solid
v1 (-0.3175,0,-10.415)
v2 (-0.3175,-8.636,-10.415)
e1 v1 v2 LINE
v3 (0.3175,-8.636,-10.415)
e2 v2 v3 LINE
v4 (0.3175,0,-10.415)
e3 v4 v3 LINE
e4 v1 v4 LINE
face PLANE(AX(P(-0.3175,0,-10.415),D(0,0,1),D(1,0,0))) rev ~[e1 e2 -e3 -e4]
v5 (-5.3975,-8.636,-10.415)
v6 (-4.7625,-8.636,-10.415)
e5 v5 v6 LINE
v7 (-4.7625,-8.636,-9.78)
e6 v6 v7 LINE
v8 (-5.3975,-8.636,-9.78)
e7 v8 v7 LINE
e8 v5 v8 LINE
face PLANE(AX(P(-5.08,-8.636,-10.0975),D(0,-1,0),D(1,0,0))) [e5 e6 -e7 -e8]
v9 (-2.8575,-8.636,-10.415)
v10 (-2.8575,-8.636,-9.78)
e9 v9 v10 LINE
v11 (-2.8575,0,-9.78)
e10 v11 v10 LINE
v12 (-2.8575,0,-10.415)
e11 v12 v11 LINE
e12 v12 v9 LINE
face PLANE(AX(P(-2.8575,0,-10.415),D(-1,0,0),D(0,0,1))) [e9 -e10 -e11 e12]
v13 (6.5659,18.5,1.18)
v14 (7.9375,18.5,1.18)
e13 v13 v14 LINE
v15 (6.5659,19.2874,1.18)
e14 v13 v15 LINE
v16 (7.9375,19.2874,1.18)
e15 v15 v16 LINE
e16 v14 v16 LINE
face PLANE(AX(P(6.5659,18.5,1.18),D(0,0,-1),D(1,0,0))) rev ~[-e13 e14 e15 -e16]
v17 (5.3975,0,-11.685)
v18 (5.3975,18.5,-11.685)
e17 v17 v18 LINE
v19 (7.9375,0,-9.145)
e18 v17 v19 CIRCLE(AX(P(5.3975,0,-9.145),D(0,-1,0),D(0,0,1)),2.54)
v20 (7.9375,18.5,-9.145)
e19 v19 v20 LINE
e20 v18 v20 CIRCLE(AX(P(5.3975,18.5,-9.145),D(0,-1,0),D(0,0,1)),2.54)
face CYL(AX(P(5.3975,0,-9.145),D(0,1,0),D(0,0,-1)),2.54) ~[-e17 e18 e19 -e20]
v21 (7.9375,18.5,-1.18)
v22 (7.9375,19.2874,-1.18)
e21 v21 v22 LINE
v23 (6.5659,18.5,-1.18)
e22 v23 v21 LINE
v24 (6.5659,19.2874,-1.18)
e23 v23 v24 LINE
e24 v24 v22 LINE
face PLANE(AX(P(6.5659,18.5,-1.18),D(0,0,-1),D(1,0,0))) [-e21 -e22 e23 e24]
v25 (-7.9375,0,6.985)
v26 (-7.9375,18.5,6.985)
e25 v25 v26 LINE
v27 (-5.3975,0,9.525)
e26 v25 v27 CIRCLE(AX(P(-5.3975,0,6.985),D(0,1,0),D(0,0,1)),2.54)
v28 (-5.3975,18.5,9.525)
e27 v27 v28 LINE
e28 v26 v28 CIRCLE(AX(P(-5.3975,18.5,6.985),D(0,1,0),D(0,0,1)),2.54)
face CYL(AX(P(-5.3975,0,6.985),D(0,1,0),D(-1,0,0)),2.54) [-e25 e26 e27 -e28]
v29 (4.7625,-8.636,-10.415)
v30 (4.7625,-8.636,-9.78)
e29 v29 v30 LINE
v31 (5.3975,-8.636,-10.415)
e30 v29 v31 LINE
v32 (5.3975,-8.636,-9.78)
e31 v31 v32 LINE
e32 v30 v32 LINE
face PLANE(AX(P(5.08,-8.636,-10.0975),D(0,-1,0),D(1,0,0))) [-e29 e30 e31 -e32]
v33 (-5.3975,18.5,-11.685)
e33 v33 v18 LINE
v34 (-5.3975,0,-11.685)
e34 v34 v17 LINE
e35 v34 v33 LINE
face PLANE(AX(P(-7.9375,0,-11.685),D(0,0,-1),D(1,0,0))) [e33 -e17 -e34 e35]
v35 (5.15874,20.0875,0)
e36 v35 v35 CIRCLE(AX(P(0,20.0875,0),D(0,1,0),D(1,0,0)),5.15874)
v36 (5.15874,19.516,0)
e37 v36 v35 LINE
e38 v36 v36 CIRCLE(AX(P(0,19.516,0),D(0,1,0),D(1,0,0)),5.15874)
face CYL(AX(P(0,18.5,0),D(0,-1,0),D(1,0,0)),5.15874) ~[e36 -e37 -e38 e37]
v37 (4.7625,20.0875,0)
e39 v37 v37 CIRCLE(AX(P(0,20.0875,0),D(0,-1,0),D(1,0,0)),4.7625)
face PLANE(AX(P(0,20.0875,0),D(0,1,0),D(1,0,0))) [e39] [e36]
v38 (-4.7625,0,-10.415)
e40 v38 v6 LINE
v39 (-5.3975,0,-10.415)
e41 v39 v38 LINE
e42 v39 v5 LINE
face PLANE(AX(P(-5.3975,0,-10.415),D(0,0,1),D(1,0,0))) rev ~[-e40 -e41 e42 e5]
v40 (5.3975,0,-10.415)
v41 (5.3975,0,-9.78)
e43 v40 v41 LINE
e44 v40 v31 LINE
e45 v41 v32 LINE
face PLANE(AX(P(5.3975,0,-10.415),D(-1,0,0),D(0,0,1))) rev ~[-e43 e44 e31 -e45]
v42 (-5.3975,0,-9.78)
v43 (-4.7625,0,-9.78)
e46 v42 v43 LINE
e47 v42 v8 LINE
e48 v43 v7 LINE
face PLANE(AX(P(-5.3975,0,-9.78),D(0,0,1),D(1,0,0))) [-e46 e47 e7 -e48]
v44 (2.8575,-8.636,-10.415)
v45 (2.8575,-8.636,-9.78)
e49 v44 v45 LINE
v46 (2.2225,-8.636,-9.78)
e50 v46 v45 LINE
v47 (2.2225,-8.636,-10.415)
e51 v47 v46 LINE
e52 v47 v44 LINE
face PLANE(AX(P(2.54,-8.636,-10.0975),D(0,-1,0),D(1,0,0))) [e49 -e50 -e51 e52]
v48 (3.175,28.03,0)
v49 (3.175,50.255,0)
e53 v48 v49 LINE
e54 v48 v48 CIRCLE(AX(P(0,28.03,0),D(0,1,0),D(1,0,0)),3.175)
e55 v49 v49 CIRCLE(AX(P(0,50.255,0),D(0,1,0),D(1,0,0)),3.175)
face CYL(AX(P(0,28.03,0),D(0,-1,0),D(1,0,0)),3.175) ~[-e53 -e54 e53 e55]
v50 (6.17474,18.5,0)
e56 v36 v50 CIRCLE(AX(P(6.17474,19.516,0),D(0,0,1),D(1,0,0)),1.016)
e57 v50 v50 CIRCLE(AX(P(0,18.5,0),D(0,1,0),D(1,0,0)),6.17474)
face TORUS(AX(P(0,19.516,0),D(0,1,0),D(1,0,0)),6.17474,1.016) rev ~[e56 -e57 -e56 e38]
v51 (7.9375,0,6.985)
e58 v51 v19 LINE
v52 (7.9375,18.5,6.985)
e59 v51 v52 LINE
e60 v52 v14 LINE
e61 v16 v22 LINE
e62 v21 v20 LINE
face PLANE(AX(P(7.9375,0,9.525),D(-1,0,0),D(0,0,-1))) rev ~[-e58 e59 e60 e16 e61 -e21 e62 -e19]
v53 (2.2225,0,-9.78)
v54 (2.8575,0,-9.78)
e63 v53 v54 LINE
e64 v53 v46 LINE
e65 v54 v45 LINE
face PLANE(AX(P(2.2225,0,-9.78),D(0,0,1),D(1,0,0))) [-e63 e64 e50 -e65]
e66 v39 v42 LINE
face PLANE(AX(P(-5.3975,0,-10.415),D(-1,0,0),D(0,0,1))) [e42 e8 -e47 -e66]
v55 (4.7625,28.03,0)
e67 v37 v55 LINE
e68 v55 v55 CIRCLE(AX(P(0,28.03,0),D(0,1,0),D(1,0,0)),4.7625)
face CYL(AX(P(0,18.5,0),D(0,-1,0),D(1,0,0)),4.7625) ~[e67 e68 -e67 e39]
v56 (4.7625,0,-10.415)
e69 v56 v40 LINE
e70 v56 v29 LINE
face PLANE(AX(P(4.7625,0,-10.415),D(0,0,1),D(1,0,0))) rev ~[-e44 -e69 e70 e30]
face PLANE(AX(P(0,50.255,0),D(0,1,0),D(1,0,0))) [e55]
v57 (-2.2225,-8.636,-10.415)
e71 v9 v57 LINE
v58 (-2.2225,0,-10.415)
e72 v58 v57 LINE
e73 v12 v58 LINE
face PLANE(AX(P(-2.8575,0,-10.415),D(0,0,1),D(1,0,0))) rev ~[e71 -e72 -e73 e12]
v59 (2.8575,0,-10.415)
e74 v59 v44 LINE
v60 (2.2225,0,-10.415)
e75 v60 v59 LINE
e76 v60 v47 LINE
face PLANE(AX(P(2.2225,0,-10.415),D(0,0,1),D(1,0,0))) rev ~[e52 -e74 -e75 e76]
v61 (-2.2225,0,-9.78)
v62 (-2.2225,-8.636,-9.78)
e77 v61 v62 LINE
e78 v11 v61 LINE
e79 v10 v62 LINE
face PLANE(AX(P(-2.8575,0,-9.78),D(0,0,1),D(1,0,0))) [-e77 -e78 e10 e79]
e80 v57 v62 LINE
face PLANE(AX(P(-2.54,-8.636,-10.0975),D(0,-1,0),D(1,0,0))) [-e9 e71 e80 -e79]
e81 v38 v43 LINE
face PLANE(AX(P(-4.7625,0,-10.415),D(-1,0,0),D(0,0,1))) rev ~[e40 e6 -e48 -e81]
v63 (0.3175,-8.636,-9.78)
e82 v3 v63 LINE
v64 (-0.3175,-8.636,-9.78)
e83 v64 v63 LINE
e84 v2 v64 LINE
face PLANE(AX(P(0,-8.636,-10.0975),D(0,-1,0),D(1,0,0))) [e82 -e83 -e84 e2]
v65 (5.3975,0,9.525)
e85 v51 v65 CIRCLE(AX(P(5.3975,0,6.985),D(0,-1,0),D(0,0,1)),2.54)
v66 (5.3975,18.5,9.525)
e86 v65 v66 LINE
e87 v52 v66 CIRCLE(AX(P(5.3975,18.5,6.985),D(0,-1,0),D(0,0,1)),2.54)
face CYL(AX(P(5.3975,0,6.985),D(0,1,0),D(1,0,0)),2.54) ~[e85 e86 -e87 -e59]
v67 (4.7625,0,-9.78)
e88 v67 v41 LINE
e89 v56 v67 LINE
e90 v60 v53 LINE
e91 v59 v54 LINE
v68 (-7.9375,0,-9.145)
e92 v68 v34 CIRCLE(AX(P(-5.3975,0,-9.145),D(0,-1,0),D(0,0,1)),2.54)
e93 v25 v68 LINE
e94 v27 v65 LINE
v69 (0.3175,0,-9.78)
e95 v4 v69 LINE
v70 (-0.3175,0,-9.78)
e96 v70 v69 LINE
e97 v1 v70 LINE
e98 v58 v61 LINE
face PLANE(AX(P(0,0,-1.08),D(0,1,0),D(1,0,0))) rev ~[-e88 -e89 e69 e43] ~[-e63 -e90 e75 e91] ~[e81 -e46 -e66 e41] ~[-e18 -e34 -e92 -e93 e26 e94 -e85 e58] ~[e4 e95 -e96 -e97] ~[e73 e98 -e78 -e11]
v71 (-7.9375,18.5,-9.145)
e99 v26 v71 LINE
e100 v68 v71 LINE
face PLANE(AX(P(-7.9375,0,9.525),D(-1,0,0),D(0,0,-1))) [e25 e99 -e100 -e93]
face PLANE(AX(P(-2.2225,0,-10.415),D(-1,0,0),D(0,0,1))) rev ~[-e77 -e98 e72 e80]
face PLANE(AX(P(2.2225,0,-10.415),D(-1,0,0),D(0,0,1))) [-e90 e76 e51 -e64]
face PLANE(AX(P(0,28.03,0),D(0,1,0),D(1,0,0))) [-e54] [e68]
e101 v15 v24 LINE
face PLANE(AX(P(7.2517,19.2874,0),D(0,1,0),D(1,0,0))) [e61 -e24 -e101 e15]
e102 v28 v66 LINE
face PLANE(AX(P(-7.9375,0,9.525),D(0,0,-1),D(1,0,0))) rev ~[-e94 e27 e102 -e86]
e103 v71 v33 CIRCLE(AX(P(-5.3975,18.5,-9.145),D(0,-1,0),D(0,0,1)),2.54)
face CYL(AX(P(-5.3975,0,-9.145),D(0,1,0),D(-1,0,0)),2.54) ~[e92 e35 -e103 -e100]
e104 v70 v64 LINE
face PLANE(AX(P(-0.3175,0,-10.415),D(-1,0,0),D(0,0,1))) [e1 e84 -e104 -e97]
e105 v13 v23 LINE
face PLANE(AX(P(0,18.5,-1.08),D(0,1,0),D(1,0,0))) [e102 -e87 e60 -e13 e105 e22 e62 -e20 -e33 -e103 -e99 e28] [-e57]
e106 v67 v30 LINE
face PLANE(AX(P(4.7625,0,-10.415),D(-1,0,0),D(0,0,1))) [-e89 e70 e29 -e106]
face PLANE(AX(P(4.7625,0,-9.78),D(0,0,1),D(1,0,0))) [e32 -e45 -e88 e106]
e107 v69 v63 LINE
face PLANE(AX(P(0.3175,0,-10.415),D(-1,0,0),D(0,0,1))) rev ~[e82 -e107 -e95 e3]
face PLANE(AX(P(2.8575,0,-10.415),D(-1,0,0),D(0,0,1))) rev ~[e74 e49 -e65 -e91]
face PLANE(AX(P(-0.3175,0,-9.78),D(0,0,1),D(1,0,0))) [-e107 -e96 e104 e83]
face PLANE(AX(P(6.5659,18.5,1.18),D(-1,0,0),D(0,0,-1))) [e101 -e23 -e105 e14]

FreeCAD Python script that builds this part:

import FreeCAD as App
import Part
import Sketcher
from FreeCAD import Vector
Q = App.Units.Quantity


def edges_at(feature, points):
    """Names of the edges that pass closest to the given points."""
    edges = feature.Shape.Edges
    near = lambda p: min(range(len(edges)), key=lambda i: edges[i].distToShape(Part.Vertex(*p))[0])
    return sorted({f"Edge{near(p) + 1}" for p in points})

doc = App.newDocument("Part")
body = doc.addObject("PartDesign::Body", "Body")

sketch1 = doc.addObject("Sketcher::SketchObject", "Sketch")
body.addObject(sketch1)
sketch1.AttachmentSupport = (doc.XZ_Plane, [""])
sketch1.MapMode = "FlatFace"
sketch1.addGeometry([
    Part.LineSegment(Vector(-8, -12, 0), Vector(-8, 10, 0)),
    Part.LineSegment(Vector(-8, 10, 0), Vector(8, 10, 0)),
    Part.LineSegment(Vector(8, 10, 0), Vector(8, -12, 0)),
    Part.LineSegment(Vector(8, -12, 0), Vector(-8, -12, 0)),
], False)
sketch1.addConstraint([
    Sketcher.Constraint("Coincident", 0, 2, 1, 1),
    Sketcher.Constraint("Coincident", 1, 2, 2, 1),
    Sketcher.Constraint("Coincident", 2, 2, 3, 1),
    Sketcher.Constraint("Coincident", 3, 2, 0, 1),
    Sketcher.Constraint("Vertical", 0),
    Sketcher.Constraint("Horizontal", 1),
    Sketcher.Constraint("Vertical", 2),
    Sketcher.Constraint("Horizontal", 3),
    Sketcher.Constraint("DistanceX", 1, 1, 1, 2, Q("0.625 in")),
    Sketcher.Constraint("DistanceX", 0, 2, -1, 1, Q("0.3125 in")),
    Sketcher.Constraint("DistanceY", -1, 1, 0, 2, Q("0.375 in")),
    Sketcher.Constraint("DistanceY", 0, 1, 0, 2, Q("21.21 mm")),
])
pad1 = doc.addObject("PartDesign::Pad", "Pad")
body.addObject(pad1)
pad1.Profile = sketch1
pad1.Length = 18.5
pad1.Reversed = True

sketch2 = doc.addObject("Sketcher::SketchObject", "Sketch001")
body.addObject(sketch2)
sketch2.AttachmentSupport = (doc.XZ_Plane, [""])
sketch2.MapMode = "FlatFace"
sketch2.AttachmentOffset = App.Placement(Vector(0, 0, -18.5), App.Rotation())
sketch2.addGeometry(Part.Circle(Vector(0, 0, 0), Vector(0, 0, 1), 4.8), False)
sketch2.addConstraint([
    Sketcher.Constraint("Coincident", 0, 3, -1, 1),
    Sketcher.Constraint("Diameter", 0, Q("0.375 in")),
])
pad2 = doc.addObject("PartDesign::Pad", "Pad001")
body.addObject(pad2)
pad2.Profile = sketch2
pad2.Length = 9.53
pad2.Reversed = True

sketch3 = doc.addObject("Sketcher::SketchObject", "Sketch002")
body.addObject(sketch3)
sketch3.AttachmentSupport = (doc.XZ_Plane, [""])
sketch3.MapMode = "FlatFace"
sketch3.AttachmentOffset = App.Placement(Vector(0, 0, -28.03), App.Rotation())
sketch3.addGeometry(Part.Circle(Vector(0, 0, 0), Vector(0, 0, 1), 3.2), False)
sketch3.addConstraint([
    Sketcher.Constraint("Coincident", 0, 3, -1, 1),
    Sketcher.Constraint("Diameter", 0, Q("0.25 in")),
])
pad3 = doc.addObject("PartDesign::Pad", "Pad002")
body.addObject(pad3)
pad3.Profile = sketch3
pad3.Length = Q("0.875 in")
pad3.Reversed = True

sketch4 = doc.addObject("Sketcher::SketchObject", "Sketch003")
body.addObject(sketch4)
sketch4.AttachmentSupport = (doc.XZ_Plane, [""])
sketch4.MapMode = "FlatFace"
sketch4.AttachmentOffset = App.Placement(Vector(0, 0, -18.5), App.Rotation())
sketch4.addGeometry(Part.Circle(Vector(0, 0, 0), Vector(0, 0, 1), 5), False)
sketch4.addConstraint([
    Sketcher.Constraint("Coincident", 0, 3, -1, 1),
    Sketcher.Constraint("Diameter", 0, Q("0.4062 in")),
])
pad4 = doc.addObject("PartDesign::Pad", "Pad003")
body.addObject(pad4)
pad4.Profile = sketch4
pad4.Length = Q("0.0625 in")
pad4.Reversed = True

sketch5 = doc.addObject("Sketcher::SketchObject", "Sketch004")
body.addObject(sketch5)
sketch5.AttachmentSupport = (doc.XZ_Plane, [""])
sketch5.MapMode = "FlatFace"
sketch5.AttachmentOffset = App.Placement(Vector(0, 0, -18.5), App.Rotation())
sketch5.addGeometry([
    Part.LineSegment(Vector(6.6, -1.2, 0), Vector(6.6, 1.2, 0)),
    Part.LineSegment(Vector(6.6, 1.2, 0), Vector(7.9, 1.2, 0)),
    Part.LineSegment(Vector(7.9, 1.2, 0), Vector(7.9, -1.2, 0)),
    Part.LineSegment(Vector(7.9, -1.2, 0), Vector(6.6, -1.2, 0)),
], False)
sketch5.addConstraint([
    Sketcher.Constraint("Coincident", 0, 2, 1, 1),
    Sketcher.Constraint("Coincident", 1, 2, 2, 1),
    Sketcher.Constraint("Coincident", 2, 2, 3, 1),
    Sketcher.Constraint("Coincident", 3, 2, 0, 1),
    Sketcher.Constraint("Vertical", 0),
    Sketcher.Constraint("Horizontal", 1),
    Sketcher.Constraint("Vertical", 2),
    Sketcher.Constraint("Horizontal", 3),
    Sketcher.Constraint("DistanceX", 1, 1, 1, 2, Q("0.054 in")),
    Sketcher.Constraint("DistanceX", -1, 1, 1, 2, Q("0.3125 in")),
    Sketcher.Constraint("DistanceY", 0, 1, 0, 2, Q("2.36 mm")),
    Sketcher.Constraint("DistanceY", -1, 1, 0, 2, Q("1.18 mm")),
])
pad5 = doc.addObject("PartDesign::Pad", "Pad004")
body.addObject(pad5)
pad5.Profile = sketch5
pad5.Length = Q("0.031 in")
pad5.Reversed = True

sketch6 = doc.addObject("Sketcher::SketchObject", "Sketch005")
body.addObject(sketch6)
sketch6.AttachmentSupport = (doc.XZ_Plane, [""])
sketch6.MapMode = "FlatFace"
sketch6.addGeometry([
    Part.LineSegment(Vector(-5.4, -9.8, 0), Vector(-5.4, -10.4, 0)),
    Part.LineSegment(Vector(-5.4, -10.4, 0), Vector(-4.8, -10.4, 0)),
    Part.LineSegment(Vector(-4.8, -10.4, 0), Vector(-4.8, -9.8, 0)),
    Part.LineSegment(Vector(-4.8, -9.8, 0), Vector(-5.4, -9.8, 0)),
    Part.LineSegment(Vector(-2.9, -9.8, 0), Vector(-2.9, -10.4, 0)),
    Part.LineSegment(Vector(-2.9, -10.4, 0), Vector(-2.2, -10.4, 0)),
    Part.LineSegment(Vector(-2.2, -10.4, 0), Vector(-2.2, -9.8, 0)),
    Part.LineSegment(Vector(-2.2, -9.8, 0), Vector(-2.9, -9.8, 0)),
    Part.LineSegment(Vector(-0.3, -9.8, 0), Vector(-0.3, -10.4, 0)),
    Part.LineSegment(Vector(-0.3, -10.4, 0), Vector(0.3, -10.4, 0)),
    Part.LineSegment(Vector(0.3, -10.4, 0), Vector(0.3, -9.8, 0)),
    Part.LineSegment(Vector(0.3, -9.8, 0), Vector(-0.3, -9.8, 0)),
    Part.LineSegment(Vector(2.2, -9.8, 0), Vector(2.2, -10.4, 0)),
    Part.LineSegment(Vector(2.2, -10.4, 0), Vector(2.9, -10.4, 0)),
    Part.LineSegment(Vector(2.9, -10.4, 0), Vector(2.9, -9.8, 0)),
    Part.LineSegment(Vector(2.9, -9.8, 0), Vector(2.2, -9.8, 0)),
    Part.LineSegment(Vector(4.8, -9.8, 0), Vector(4.8, -10.4, 0)),
    Part.LineSegment(Vector(4.8, -10.4, 0), Vector(5.4, -10.4, 0)),
    Part.LineSegment(Vector(5.4, -10.4, 0), Vector(5.4, -9.8, 0)),
    Part.LineSegment(Vector(5.4, -9.8, 0), Vector(4.8, -9.8, 0)),
], False)
sketch6.addConstraint([
    Sketcher.Constraint("Coincident", 0, 2, 1, 1),
    Sketcher.Constraint("Coincident", 1, 2, 2, 1),
    Sketcher.Constraint("Coincident", 2, 2, 3, 1),
    Sketcher.Constraint("Coincident", 3, 2, 0, 1),
    Sketcher.Constraint("Coincident", 4, 2, 5, 1),
    Sketcher.Constraint("Coincident", 5, 2, 6, 1),
    Sketcher.Constraint("Coincident", 6, 2, 7, 1),
    Sketcher.Constraint("Coincident", 7, 2, 4, 1),
    Sketcher.Constraint("Coincident", 8, 2, 9, 1),
    Sketcher.Constraint("Coincident", 9, 2, 10, 1),
    Sketcher.Constraint("Coincident", 10, 2, 11, 1),
    Sketcher.Constraint("Coincident", 11, 2, 8, 1),
    Sketcher.Constraint("Coincident", 12, 2, 13, 1),
    Sketcher.Constraint("Coincident", 13, 2, 14, 1),
    Sketcher.Constraint("Coincident", 14, 2, 15, 1),
    Sketcher.Constraint("Coincident", 15, 2, 12, 1),
    Sketcher.Constraint("Coincident", 16, 2, 17, 1),
    Sketcher.Constraint("Coincident", 17, 2, 18, 1),
    Sketcher.Constraint("Coincident", 18, 2, 19, 1),
    Sketcher.Constraint("Coincident", 19, 2, 16, 1),
    Sketcher.Constraint("Vertical", 0),
    Sketcher.Constraint("Horizontal", 1),
    Sketcher.Constraint("Vertical", 2),
    Sketcher.Constraint("Horizontal", 3),
    Sketcher.Constraint("Vertical", 4),
    Sketcher.Constraint("Horizontal", 5),
    Sketcher.Constraint("Vertical", 6),
    Sketcher.Constraint("Horizontal", 7),
    Sketcher.Constraint("Vertical", 8),
    Sketcher.Constraint("Horizontal", 9),
    Sketcher.Constraint("Vertical", 10),
    Sketcher.Constraint("Horizontal", 11),
    Sketcher.Constraint("Vertical", 12),
    Sketcher.Constraint("Horizontal", 13),
    Sketcher.Constraint("Vertical", 14),
    Sketcher.Constraint("Horizontal", 15),
    Sketcher.Constraint("Vertical", 16),
    Sketcher.Constraint("Horizontal", 17),
    Sketcher.Constraint("Vertical", 18),
    Sketcher.Constraint("Horizontal", 19),
    Sketcher.Constraint("Symmetric", 5, 2, 12, 2, -2),
    Sketcher.Constraint("Symmetric", 7, 2, 14, 2, -2),
    Sketcher.Constraint("Symmetric", 1, 2, 16, 2, -2),
    Sketcher.Constraint("Symmetric", 3, 2, 18, 2, -2),
    Sketcher.Constraint("Horizontal", 1, 2, 4, 2),
    Sketcher.Constraint("Horizontal", 3, 2, 6, 2),
    Sketcher.Constraint("Horizontal", 5, 2, 8, 2),
    Sketcher.Constraint("Horizontal", 7, 2, 10, 2),
    Sketcher.Constraint("Equal", 3, 5),
    Sketcher.Constraint("Equal", 7, 9),
    Sketcher.Constraint("Equal", 19, 0),
    Sketcher.Constraint("DistanceX", 0, 2, 4, 2, Q("0.1 in")),
    Sketcher.Constraint("DistanceX", 4, 2, 8, 2, Q("0.1 in")),
    Sketcher.Constraint("DistanceX", 8, 2, 12, 2, Q("0.1 in")),
    Sketcher.Constraint("DistanceX", 1, 1, 1, 2, Q("0.025 in")),
    Sketcher.Constraint("DistanceY", 0, 2, -1, 1, Q("10.415 mm")),
])
pad6 = doc.addObject("PartDesign::Pad", "Pad005")
body.addObject(pad6)
pad6.Profile = sketch6
pad6.Length = Q("0.34 in")
doc.recompute()

fillet = doc.addObject("PartDesign::Fillet", "Fillet")
body.addObject(fillet)
fillet.Base = (pad6, edges_at(pad6, [(-5.159, 18.5, 0)]))
fillet.Radius = Q("0.04 in")
doc.recompute()

fillet2 = doc.addObject("PartDesign::Fillet", "Fillet001")
body.addObject(fillet2)
fillet2.Base = (fillet, edges_at(fillet, [
    (7.938, 9.25, 9.525),
    (-7.938, 9.25, 9.525),
    (-7.938, 9.25, -11.685),
    (7.938, 9.25, -11.685),
]))
fillet2.Radius = Q("0.1 in")

doc.recompute()
